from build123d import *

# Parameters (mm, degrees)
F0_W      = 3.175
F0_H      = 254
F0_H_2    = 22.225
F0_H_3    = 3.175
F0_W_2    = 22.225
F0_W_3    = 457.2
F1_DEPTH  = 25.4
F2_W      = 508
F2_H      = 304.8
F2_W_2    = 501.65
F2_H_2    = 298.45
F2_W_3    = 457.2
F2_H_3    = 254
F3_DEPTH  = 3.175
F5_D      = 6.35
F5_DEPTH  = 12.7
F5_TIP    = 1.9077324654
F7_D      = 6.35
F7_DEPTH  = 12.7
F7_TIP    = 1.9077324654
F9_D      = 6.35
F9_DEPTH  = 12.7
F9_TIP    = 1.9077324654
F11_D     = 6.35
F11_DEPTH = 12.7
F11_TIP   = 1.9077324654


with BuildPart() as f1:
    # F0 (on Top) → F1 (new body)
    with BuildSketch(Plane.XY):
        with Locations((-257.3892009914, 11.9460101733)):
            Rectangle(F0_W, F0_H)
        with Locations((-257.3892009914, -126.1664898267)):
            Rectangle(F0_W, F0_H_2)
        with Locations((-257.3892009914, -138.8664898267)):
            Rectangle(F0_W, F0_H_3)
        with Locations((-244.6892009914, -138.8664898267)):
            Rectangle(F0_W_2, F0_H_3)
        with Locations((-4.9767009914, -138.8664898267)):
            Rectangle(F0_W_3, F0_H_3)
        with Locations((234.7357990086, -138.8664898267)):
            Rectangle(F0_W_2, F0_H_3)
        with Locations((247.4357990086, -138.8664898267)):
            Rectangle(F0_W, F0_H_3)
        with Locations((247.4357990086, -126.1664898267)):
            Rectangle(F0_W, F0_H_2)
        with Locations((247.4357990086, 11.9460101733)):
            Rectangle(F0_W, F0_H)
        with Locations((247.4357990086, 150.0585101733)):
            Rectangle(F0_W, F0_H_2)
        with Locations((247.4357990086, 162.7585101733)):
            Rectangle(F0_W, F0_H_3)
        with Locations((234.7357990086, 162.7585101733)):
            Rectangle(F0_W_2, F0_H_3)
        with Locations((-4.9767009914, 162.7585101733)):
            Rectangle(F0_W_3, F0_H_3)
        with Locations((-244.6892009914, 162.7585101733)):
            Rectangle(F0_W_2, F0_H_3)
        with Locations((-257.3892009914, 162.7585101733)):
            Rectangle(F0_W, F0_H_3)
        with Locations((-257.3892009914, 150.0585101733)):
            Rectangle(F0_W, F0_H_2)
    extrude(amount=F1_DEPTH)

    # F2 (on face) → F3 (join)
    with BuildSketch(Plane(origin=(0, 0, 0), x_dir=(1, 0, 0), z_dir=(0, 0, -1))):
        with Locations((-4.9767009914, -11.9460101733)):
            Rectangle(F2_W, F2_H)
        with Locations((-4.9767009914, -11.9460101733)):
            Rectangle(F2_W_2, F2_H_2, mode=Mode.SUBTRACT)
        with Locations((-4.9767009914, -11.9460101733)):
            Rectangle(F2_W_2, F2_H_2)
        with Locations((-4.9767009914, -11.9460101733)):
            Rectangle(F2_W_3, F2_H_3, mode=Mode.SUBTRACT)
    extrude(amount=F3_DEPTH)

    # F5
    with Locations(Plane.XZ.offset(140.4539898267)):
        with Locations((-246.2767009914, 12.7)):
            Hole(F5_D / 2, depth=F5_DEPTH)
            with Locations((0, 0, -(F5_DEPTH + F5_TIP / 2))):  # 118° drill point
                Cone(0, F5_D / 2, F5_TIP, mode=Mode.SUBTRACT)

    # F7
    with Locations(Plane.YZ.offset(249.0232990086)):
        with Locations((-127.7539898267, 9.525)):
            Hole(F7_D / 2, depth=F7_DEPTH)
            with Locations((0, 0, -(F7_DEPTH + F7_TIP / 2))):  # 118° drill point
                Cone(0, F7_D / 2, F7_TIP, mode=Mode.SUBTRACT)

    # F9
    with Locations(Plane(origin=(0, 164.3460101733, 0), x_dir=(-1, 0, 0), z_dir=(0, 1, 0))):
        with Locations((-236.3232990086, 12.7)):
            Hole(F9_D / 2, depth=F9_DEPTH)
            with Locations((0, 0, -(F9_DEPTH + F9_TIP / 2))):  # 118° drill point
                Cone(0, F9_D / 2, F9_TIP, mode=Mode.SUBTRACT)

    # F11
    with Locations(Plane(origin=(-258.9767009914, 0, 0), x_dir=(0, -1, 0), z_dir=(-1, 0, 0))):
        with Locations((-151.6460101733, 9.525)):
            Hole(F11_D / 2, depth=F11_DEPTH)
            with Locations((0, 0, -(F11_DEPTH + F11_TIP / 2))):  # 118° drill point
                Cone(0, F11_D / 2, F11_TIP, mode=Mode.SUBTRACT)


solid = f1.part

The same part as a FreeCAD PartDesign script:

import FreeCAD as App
import Part
import Sketcher
Q = App.Units.Quantity


def add_polygon(sketch, points):
    """Adds a closed chain of lines whose ends are joined by coincident constraints."""
    first, n = sketch.GeometryCount, len(points)
    for a, b in zip(points, points[1:] + points[:1]):
        sketch.addGeometry(Part.LineSegment(App.Vector(*a, 0), App.Vector(*b, 0)), False)
    for i in range(n):
        sketch.addConstraint(Sketcher.Constraint("Coincident", first + i, 2, first + (i + 1) % n, 1))

doc = App.newDocument("Part")
body = doc.addObject("PartDesign::Body", "Body")

# Sketch on XY plane
sketch1 = doc.addObject("Sketcher::SketchObject", "Sketch")
body.addObject(sketch1)
sketch1.AttachmentSupport = (doc.XY_Plane, [""])
sketch1.MapMode = "FlatFace"
add_polygon(sketch1, [(-259, -140), (249, -140), (249, 164), (-259, 164)])  # lines 0-3
add_polygon(sketch1, [(-256, 161), (246, 161), (246, -137), (-256, -137)])  # lines 4-7
sketch1.addConstraint([
    Sketcher.Constraint("Horizontal", 0),
    Sketcher.Constraint("Vertical", 1),
    Sketcher.Constraint("Horizontal", 2),
    Sketcher.Constraint("Vertical", 3),
    Sketcher.Constraint("Horizontal", 4),
    Sketcher.Constraint("Vertical", 5),
    Sketcher.Constraint("Horizontal", 6),
    Sketcher.Constraint("Vertical", 7),
    Sketcher.Constraint("DistanceX", 0, 1, 0, 2, Q("20 in")),
    Sketcher.Constraint("DistanceY", 1, 1, 1, 2, Q("12 in")),
    Sketcher.Constraint("DistanceX", 4, 1, 4, 2, Q("19.75 in")),
    Sketcher.Constraint("DistanceY", 5, 2, 5, 1, Q("11.75 in")),
    Sketcher.Constraint("DistanceX", 4, 2, 1, 2, Q("0.125 in")),
    Sketcher.Constraint("DistanceY", 4, 2, 1, 2, Q("0.125 in")),
    Sketcher.Constraint("DistanceX", -1, 1, 0, 2, Q("249.023299 mm")),
    Sketcher.Constraint("DistanceY", 0, 2, -1, 1, Q("140.45399 mm")),
])
pad1 = doc.addObject("PartDesign::Pad", "Pad")
body.addObject(pad1)
pad1.Profile = sketch1
pad1.Length = Q("1 in")

# Sketch on XY plane
sketch2 = doc.addObject("Sketcher::SketchObject", "Sketch001")
body.addObject(sketch2)
sketch2.AttachmentSupport = (doc.XY_Plane, [""])
sketch2.MapMode = "FlatFace"
add_polygon(sketch2, [(-259, -140), (-259, 164), (249, 164), (249, -140)])  # lines 0-3
add_polygon(sketch2, [(224, 139), (-234, 139), (-234, -115), (224, -115)])  # lines 4-7
sketch2.addConstraint([
    Sketcher.Constraint("Vertical", 0),
    Sketcher.Constraint("Horizontal", 1),
    Sketcher.Constraint("Vertical", 2),
    Sketcher.Constraint("Horizontal", 3),
    Sketcher.Constraint("Horizontal", 4),
    Sketcher.Constraint("Vertical", 5),
    Sketcher.Constraint("Horizontal", 6),
    Sketcher.Constraint("Vertical", 7),
    Sketcher.Constraint("DistanceX", 1, 1, 1, 2, Q("20 in")),
    Sketcher.Constraint("DistanceX", 4, 2, 4, 1, Q("18 in")),
    Sketcher.Constraint("DistanceY", 0, 1, 0, 2, Q("12 in")),
    Sketcher.Constraint("DistanceY", 5, 2, 5, 1, Q("10 in")),
    Sketcher.Constraint("DistanceX", 0, 2, 4, 2, Q("1 in")),
    Sketcher.Constraint("DistanceY", 4, 2, 0, 2, Q("1 in")),
    Sketcher.Constraint("DistanceX", 0, 2, -1, 1, Q("258.976701 mm")),
    Sketcher.Constraint("DistanceY", -1, 1, 0, 2, Q("164.34601 mm")),
])
pad2 = doc.addObject("PartDesign::Pad", "Pad001")
body.addObject(pad2)
pad2.Profile = sketch2
pad2.Length = Q("0.125 in")
pad2.Reversed = True

# Sketch on XZ plane
sketch3 = doc.addObject("Sketcher::SketchObject", "Sketch002")
body.addObject(sketch3)
sketch3.AttachmentSupport = (doc.XZ_Plane, [""])
sketch3.MapMode = "FlatFace"
sketch3.AttachmentOffset = App.Placement(App.Vector(0, 0, 140.45399), App.Rotation())
sketch3.addGeometry(Part.Circle(App.Vector(-246.3, 12.7, 0), App.Vector(0, 0, 1), 3.2), False)
sketch3.addConstraint([
    Sketcher.Constraint("Diameter", 0, Q("0.25 in")),
    Sketcher.Constraint("DistanceY", -1, 1, 0, 3, Q("0.5 in")),
    Sketcher.Constraint("DistanceX", 0, 3, -1, 1, Q("246.276701 mm")),
])
doc.recompute()
hole = doc.addObject("PartDesign::Hole", "Hole")
body.addObject(hole)
hole.Profile = sketch3
hole.ThreadType = "None"
hole.Diameter = Q("0.25 in")
hole.DepthType = "Dimension"
hole.Depth = Q("0.5 in")
hole.DrillPoint = "Angled"
hole.DrillPointAngle = 118

# Sketch on YZ plane
sketch4 = doc.addObject("Sketcher::SketchObject", "Sketch003")
body.addObject(sketch4)
sketch4.AttachmentSupport = (doc.YZ_Plane, [""])
sketch4.MapMode = "FlatFace"
sketch4.AttachmentOffset = App.Placement(App.Vector(0, 0, 249.023299), App.Rotation())
sketch4.addGeometry(Part.Circle(App.Vector(-127.8, 9.5, 0), App.Vector(0, 0, 1), 3.2), False)
sketch4.addConstraint([
    Sketcher.Constraint("Diameter", 0, Q("0.25 in")),
    Sketcher.Constraint("DistanceY", -1, 1, 0, 3, Q("0.375 in")),
    Sketcher.Constraint("DistanceX", 0, 3, -1, 1, Q("127.75399 mm")),
])
doc.recompute()
hole2 = doc.addObject("PartDesign::Hole", "Hole001")
body.addObject(hole2)
hole2.Profile = sketch4
hole2.ThreadType = "None"
hole2.Diameter = Q("0.25 in")
hole2.DepthType = "Dimension"
hole2.Depth = Q("0.5 in")
hole2.DrillPoint = "Angled"
hole2.DrillPointAngle = 118

# Sketch on XZ plane
sketch5 = doc.addObject("Sketcher::SketchObject", "Sketch004")
body.addObject(sketch5)
sketch5.AttachmentSupport = (doc.XZ_Plane, [""])
sketch5.MapMode = "FlatFace"
sketch5.AttachmentOffset = App.Placement(App.Vector(0, 0, -164.34601), App.Rotation())
sketch5.addGeometry(Part.Circle(App.Vector(236.3, 12.7, 0), App.Vector(0, 0, 1), 3.2), False)
sketch5.addConstraint([
    Sketcher.Constraint("Diameter", 0, Q("0.25 in")),
    Sketcher.Constraint("DistanceY", -1, 1, 0, 3, Q("0.5 in")),
    Sketcher.Constraint("DistanceX", -1, 1, 0, 3, Q("236.323299 mm")),
])
doc.recompute()
hole3 = doc.addObject("PartDesign::Hole", "Hole002")
body.addObject(hole3)
hole3.Profile = sketch5
hole3.ThreadType = "None"
hole3.Diameter = Q("0.25 in")
hole3.DepthType = "Dimension"
hole3.Depth = Q("0.5 in")
hole3.DrillPoint = "Angled"
hole3.DrillPointAngle = 118
hole3.Reversed = True

# Sketch on YZ plane
sketch6 = doc.addObject("Sketcher::SketchObject", "Sketch005")
body.addObject(sketch6)
sketch6.AttachmentSupport = (doc.YZ_Plane, [""])
sketch6.MapMode = "FlatFace"
sketch6.AttachmentOffset = App.Placement(App.Vector(0, 0, -258.976701), App.Rotation())
sketch6.addGeometry(Part.Circle(App.Vector(151.6, 9.5, 0), App.Vector(0, 0, 1), 3.2), False)
sketch6.addConstraint([
    Sketcher.Constraint("Diameter", 0, Q("0.25 in")),
    Sketcher.Constraint("DistanceY", -1, 1, 0, 3, Q("0.375 in")),
    Sketcher.Constraint("DistanceX", -1, 1, 0, 3, Q("151.64601 mm")),
])
doc.recompute()
hole4 = doc.addObject("PartDesign::Hole", "Hole003")
body.addObject(hole4)
hole4.Profile = sketch6
hole4.ThreadType = "None"
hole4.Diameter = Q("0.25 in")
hole4.DepthType = "Dimension"
hole4.Depth = Q("0.5 in")
hole4.DrillPoint = "Angled"
hole4.DrillPointAngle = 118
hole4.Reversed = True

doc.recompute()
